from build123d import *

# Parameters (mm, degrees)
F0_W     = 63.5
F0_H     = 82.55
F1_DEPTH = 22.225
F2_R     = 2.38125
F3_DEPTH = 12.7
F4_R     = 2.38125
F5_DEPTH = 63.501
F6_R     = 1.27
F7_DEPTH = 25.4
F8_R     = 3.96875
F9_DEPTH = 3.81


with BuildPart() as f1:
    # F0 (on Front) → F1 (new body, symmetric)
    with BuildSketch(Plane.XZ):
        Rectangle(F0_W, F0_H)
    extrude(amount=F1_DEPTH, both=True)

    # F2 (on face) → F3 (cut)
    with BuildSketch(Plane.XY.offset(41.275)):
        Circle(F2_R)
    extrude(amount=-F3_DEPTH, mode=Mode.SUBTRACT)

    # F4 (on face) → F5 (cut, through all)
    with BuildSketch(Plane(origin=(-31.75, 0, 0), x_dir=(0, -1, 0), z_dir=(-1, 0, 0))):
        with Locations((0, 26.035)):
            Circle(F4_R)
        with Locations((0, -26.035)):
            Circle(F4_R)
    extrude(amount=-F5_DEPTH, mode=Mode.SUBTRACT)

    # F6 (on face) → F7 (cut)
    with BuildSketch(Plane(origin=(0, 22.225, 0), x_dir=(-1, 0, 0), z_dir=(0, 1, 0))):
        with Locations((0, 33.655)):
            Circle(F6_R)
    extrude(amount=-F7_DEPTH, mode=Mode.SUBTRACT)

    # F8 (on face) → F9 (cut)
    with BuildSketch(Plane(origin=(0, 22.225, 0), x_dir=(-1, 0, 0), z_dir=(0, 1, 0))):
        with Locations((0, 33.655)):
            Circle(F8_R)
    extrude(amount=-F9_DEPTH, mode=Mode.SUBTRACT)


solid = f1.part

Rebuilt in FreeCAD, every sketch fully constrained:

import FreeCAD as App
import Part
import Sketcher
Q = App.Units.Quantity

doc = App.newDocument("Part")
params = doc.addObject("Spreadsheet::Sheet", "Params")
for row, (alias, value) in enumerate([
    ("sketch1_width", "2.5 in"),
    ("sketch1_height", "3.25 in"),
    ("pad1_length", "1.75 in"),
    ("sketch2_diameter", "0.1875 in"),
    ("pocket1_length", "0.5 in"),
    ("sketch3_diameter", "0.1875 in"),
    ("sketch4_diameter", "0.1 in"),
    ("pocket3_length", "1 in"),
    ("sketch5_diameter", "0.3125 in"),
    ("pocket4_length", "0.15 in"),
], start=1):
    params.set(f"A{row}", alias)
    params.set(f"B{row}", "=" + value)
    params.setAlias(f"B{row}", alias)

body = doc.addObject("PartDesign::Body", "Body")

sketch1 = body.newObject("Sketcher::SketchObject", "Sketch")
sketch1.AttachmentSupport = (doc.getObject("XZ_Plane"), [""])
sketch1.MapMode = "FlatFace"
sketch1.addGeometry(Part.LineSegment(App.Vector(-32, 41, 0), App.Vector(-32, -41, 0)), False)
sketch1.addGeometry(Part.LineSegment(App.Vector(-32, -41, 0), App.Vector(32, -41, 0)), False)
sketch1.addGeometry(Part.LineSegment(App.Vector(32, -41, 0), App.Vector(32, 41, 0)), False)
sketch1.addGeometry(Part.LineSegment(App.Vector(32, 41, 0), App.Vector(-32, 41, 0)), False)
sketch1.addConstraint(Sketcher.Constraint("Coincident", 0, 2, 1, 1))
sketch1.addConstraint(Sketcher.Constraint("Coincident", 1, 2, 2, 1))
sketch1.addConstraint(Sketcher.Constraint("Coincident", 2, 2, 3, 1))
sketch1.addConstraint(Sketcher.Constraint("Coincident", 3, 2, 0, 1))
sketch1.addConstraint(Sketcher.Constraint("Vertical", 0))
sketch1.addConstraint(Sketcher.Constraint("Horizontal", 1))
sketch1.addConstraint(Sketcher.Constraint("Vertical", 2))
sketch1.addConstraint(Sketcher.Constraint("Horizontal", 3))
sketch1.addConstraint(Sketcher.Constraint("Symmetric", 0, 2, 2, 2, -1, 1))
sketch1.addConstraint(Sketcher.Constraint("DistanceX", 1, 1, 1, 2, Q("2.5 in")))
sketch1.addConstraint(Sketcher.Constraint("DistanceY", 0, 2, 0, 1, Q("3.25 in")))
sketch1.setExpression("Constraints[9]", "Params.sketch1_width")
sketch1.setExpression("Constraints[10]", "Params.sketch1_height")
pad1 = body.newObject("PartDesign::Pad", "Pad")
pad1.Profile = sketch1
pad1.setExpression("Length", "Params.pad1_length")
pad1.Midplane = True

sketch2 = body.newObject("Sketcher::SketchObject", "Sketch001")
sketch2.AttachmentSupport = (doc.getObject("XY_Plane"), [""])
sketch2.MapMode = "FlatFace"
sketch2.AttachmentOffset = App.Placement(App.Vector(0, 0, 1.625 * 25.4), App.Rotation())
sketch2.addGeometry(Part.Circle(App.Vector(0, 0, 0), App.Vector(0, 0, 1), 2.4), False)
sketch2.addConstraint(Sketcher.Constraint("Coincident", 0, 3, -1, 1))
sketch2.addConstraint(Sketcher.Constraint("Diameter", 0, Q("0.1875 in")))
sketch2.setExpression("Constraints[1]", "Params.sketch2_diameter")
pocket1 = body.newObject("PartDesign::Pocket", "Pocket")
pocket1.Profile = sketch2
pocket1.setExpression("Length", "Params.pocket1_length")

sketch3 = body.newObject("Sketcher::SketchObject", "Sketch002")
sketch3.AttachmentSupport = (doc.getObject("YZ_Plane"), [""])
sketch3.MapMode = "FlatFace"
sketch3.AttachmentOffset = App.Placement(App.Vector(0, 0, -1.25 * 25.4), App.Rotation())
sketch3.addGeometry(Part.Circle(App.Vector(0, 26, 0), App.Vector(0, 0, 1), 2.4), False)
sketch3.addGeometry(Part.Circle(App.Vector(0, -26, 0), App.Vector(0, 0, 1), 2.4), False)
sketch3.addConstraint(Sketcher.Constraint("Equal", 0, 1))
sketch3.addConstraint(Sketcher.Constraint("Symmetric", 0, 3, 1, 3, -1, 1))
sketch3.addConstraint(Sketcher.Constraint("PointOnObject", 0, 3, -2))
sketch3.addConstraint(Sketcher.Constraint("Diameter", 0, Q("0.1875 in")))
sketch3.addConstraint(Sketcher.Constraint("DistanceY", 1, 3, 0, 3, Q("2.05 in")))
sketch3.setExpression("Constraints[3]", "Params.sketch3_diameter")
pocket2 = body.newObject("PartDesign::Pocket", "Pocket001")
pocket2.Profile = sketch3
pocket2.Type = "ThroughAll"
pocket2.Reversed = True

sketch4 = body.newObject("Sketcher::SketchObject", "Sketch003")
sketch4.AttachmentSupport = (doc.getObject("XZ_Plane"), [""])
sketch4.MapMode = "FlatFace"
sketch4.AttachmentOffset = App.Placement(App.Vector(0, 0, -0.875 * 25.4), App.Rotation())
sketch4.addGeometry(Part.Circle(App.Vector(0, 33.7, 0), App.Vector(0, 0, 1), 1.3), False)
sketch4.addConstraint(Sketcher.Constraint("PointOnObject", 0, 3, -2))
sketch4.addConstraint(Sketcher.Constraint("Diameter", 0, Q("0.1 in")))
sketch4.addConstraint(Sketcher.Constraint("DistanceY", -1, 1, 0, 3, Q("1.325 in")))
sketch4.setExpression("Constraints[1]", "Params.sketch4_diameter")
pocket3 = body.newObject("PartDesign::Pocket", "Pocket002")
pocket3.Profile = sketch4
pocket3.setExpression("Length", "Params.pocket3_length")
pocket3.Reversed = True

sketch5 = body.newObject("Sketcher::SketchObject", "Sketch004")
sketch5.AttachmentSupport = (doc.getObject("XZ_Plane"), [""])
sketch5.MapMode = "FlatFace"
sketch5.AttachmentOffset = App.Placement(App.Vector(0, 0, -0.875 * 25.4), App.Rotation())
sketch5.addGeometry(Part.Circle(App.Vector(0, 33.7, 0), App.Vector(0, 0, 1), 4), False)
sketch5.addConstraint(Sketcher.Constraint("PointOnObject", 0, 3, -2))
sketch5.addConstraint(Sketcher.Constraint("Diameter", 0, Q("0.3125 in")))
sketch5.addConstraint(Sketcher.Constraint("DistanceY", -1, 1, 0, 3, Q("1.325 in")))
sketch5.setExpression("Constraints[1]", "Params.sketch5_diameter")
pocket4 = body.newObject("PartDesign::Pocket", "Pocket003")
pocket4.Profile = sketch5
pocket4.setExpression("Length", "Params.pocket4_length")
pocket4.Reversed = True

doc.recompute()
